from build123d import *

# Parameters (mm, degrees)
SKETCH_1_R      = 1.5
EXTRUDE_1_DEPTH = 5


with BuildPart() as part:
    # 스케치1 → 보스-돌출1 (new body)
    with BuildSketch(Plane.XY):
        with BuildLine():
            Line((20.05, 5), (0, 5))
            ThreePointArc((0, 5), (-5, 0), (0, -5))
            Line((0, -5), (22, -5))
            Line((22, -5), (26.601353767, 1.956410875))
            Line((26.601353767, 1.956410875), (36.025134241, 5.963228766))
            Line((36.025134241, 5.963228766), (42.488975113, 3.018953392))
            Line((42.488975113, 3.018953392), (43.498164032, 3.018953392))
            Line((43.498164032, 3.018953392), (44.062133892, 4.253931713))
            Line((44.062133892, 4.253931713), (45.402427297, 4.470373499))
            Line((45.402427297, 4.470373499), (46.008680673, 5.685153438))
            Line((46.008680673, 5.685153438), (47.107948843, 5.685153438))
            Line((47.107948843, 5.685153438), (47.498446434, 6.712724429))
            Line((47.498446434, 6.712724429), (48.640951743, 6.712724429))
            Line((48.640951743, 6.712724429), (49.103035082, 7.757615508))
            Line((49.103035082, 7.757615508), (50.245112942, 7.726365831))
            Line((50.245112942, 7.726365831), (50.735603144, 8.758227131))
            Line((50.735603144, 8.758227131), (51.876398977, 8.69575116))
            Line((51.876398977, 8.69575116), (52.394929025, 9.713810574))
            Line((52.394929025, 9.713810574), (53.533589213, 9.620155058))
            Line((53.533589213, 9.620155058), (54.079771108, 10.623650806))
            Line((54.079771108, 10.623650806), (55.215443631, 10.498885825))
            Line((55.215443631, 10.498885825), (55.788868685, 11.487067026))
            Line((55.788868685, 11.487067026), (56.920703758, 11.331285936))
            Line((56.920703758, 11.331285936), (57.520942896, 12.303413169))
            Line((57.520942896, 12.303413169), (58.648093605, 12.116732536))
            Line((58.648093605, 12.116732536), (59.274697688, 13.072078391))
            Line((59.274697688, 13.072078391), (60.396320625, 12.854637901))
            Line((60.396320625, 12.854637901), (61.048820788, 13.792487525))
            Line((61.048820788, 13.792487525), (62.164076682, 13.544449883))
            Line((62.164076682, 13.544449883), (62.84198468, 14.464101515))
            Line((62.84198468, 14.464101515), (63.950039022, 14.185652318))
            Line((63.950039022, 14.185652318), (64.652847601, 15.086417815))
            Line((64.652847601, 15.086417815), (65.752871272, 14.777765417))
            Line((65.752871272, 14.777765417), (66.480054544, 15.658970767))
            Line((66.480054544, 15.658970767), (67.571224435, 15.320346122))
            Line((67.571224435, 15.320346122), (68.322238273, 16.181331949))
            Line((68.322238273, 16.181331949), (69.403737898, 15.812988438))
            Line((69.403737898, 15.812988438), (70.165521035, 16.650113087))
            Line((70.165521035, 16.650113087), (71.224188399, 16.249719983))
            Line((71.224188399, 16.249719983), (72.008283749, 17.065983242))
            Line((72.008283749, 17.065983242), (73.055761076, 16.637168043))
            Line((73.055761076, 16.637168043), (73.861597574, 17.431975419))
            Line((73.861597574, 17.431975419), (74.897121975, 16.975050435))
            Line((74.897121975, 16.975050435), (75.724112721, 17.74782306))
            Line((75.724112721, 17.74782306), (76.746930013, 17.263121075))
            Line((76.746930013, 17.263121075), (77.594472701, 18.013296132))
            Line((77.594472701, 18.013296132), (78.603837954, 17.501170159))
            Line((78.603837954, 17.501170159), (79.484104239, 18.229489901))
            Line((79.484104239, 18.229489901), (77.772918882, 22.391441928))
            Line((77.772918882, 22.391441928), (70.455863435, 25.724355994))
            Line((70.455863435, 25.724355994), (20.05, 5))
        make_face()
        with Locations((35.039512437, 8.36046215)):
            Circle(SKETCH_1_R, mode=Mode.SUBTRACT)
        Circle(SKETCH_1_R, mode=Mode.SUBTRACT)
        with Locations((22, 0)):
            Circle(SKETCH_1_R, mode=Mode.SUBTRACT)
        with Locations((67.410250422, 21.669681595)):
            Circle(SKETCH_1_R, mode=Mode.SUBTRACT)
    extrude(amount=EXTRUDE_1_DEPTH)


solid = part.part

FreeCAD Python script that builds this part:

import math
import FreeCAD as App
import Part
import Sketcher
Q = App.Units.Quantity

doc = App.newDocument("Part")
params = doc.addObject("Spreadsheet::Sheet", "Params")
for row, (alias, value) in enumerate([
    ("sketch1_diameter", "3 mm"),
    ("sketch1_radius", "5 mm"),
    ("sketch1_width", "22 mm"),
    ("sketch1_length", "4.5 mm"),
    ("sketch1_length2", "54.5 mm"),
    ("pad1_length", "5 mm"),
], start=1):
    params.set(f"A{row}", alias)
    params.set(f"B{row}", "=" + value)
    params.setAlias(f"B{row}", alias)

body = doc.addObject("PartDesign::Body", "Body")

# Sketch on XY plane
sketch1 = body.newObject("Sketcher::SketchObject", "Sketch")
sketch1.AttachmentSupport = (doc.getObject("XY_Plane"), [""])
sketch1.MapMode = "FlatFace"
sketch1.addGeometry([
    Part.LineSegment(App.Vector(20.05, 5, 0), App.Vector(0, 5, 0)),  # 0
    Part.ArcOfCircle(Part.Circle(App.Vector(0, 0, 0), App.Vector(0, 0, 1), 5), math.radians(90), math.radians(270)),  # 1
    Part.LineSegment(App.Vector(0, -5, 0), App.Vector(22, -5, 0)),  # 2
    Part.LineSegment(App.Vector(22, -5, 0), App.Vector(26.601354, 1.956411, 0)),  # 3
    Part.LineSegment(App.Vector(26.601354, 1.956411, 0), App.Vector(36.025134, 5.963229, 0)),  # 4
    Part.LineSegment(App.Vector(36.025134, 5.963229, 0), App.Vector(42.488975, 3.018953, 0)),  # 5
    Part.LineSegment(App.Vector(42.488975, 3.018953, 0), App.Vector(43.498164, 3.018953, 0)),  # 6
    Part.LineSegment(App.Vector(43.498164, 3.018953, 0), App.Vector(44.062134, 4.253932, 0)),  # 7
    Part.LineSegment(App.Vector(44.062134, 4.253932, 0), App.Vector(45.402427, 4.470373, 0)),  # 8
    Part.LineSegment(App.Vector(45.402427, 4.470373, 0), App.Vector(46.008681, 5.685153, 0)),  # 9
    Part.LineSegment(App.Vector(46.008681, 5.685153, 0), App.Vector(47.107949, 5.685153, 0)),  # 10
    Part.LineSegment(App.Vector(47.107949, 5.685153, 0), App.Vector(47.498446, 6.712724, 0)),  # 11
    Part.LineSegment(App.Vector(47.498446, 6.712724, 0), App.Vector(48.640952, 6.712724, 0)),  # 12
    Part.LineSegment(App.Vector(48.640952, 6.712724, 0), App.Vector(49.103035, 7.757616, 0)),  # 13
    Part.LineSegment(App.Vector(49.103035, 7.757616, 0), App.Vector(50.245113, 7.726366, 0)),  # 14
    Part.LineSegment(App.Vector(50.245113, 7.726366, 0), App.Vector(50.735603, 8.758227, 0)),  # 15
    Part.LineSegment(App.Vector(50.735603, 8.758227, 0), App.Vector(51.876399, 8.695751, 0)),  # 16
    Part.LineSegment(App.Vector(51.876399, 8.695751, 0), App.Vector(52.394929, 9.713811, 0)),  # 17
    Part.LineSegment(App.Vector(52.394929, 9.713811, 0), App.Vector(53.533589, 9.620155, 0)),  # 18
    Part.LineSegment(App.Vector(53.533589, 9.620155, 0), App.Vector(54.079771, 10.623651, 0)),  # 19
    Part.LineSegment(App.Vector(54.079771, 10.623651, 0), App.Vector(55.215444, 10.498886, 0)),  # 20
    Part.LineSegment(App.Vector(55.215444, 10.498886, 0), App.Vector(55.788869, 11.487067, 0)),  # 21
    Part.LineSegment(App.Vector(55.788869, 11.487067, 0), App.Vector(56.920704, 11.331286, 0)),  # 22
    Part.LineSegment(App.Vector(56.920704, 11.331286, 0), App.Vector(57.520943, 12.303413, 0)),  # 23
    Part.LineSegment(App.Vector(57.520943, 12.303413, 0), App.Vector(58.648094, 12.116733, 0)),  # 24
    Part.LineSegment(App.Vector(58.648094, 12.116733, 0), App.Vector(59.274698, 13.072078, 0)),  # 25
    Part.LineSegment(App.Vector(59.274698, 13.072078, 0), App.Vector(60.396321, 12.854638, 0)),  # 26
    Part.LineSegment(App.Vector(60.396321, 12.854638, 0), App.Vector(61.048821, 13.792488, 0)),  # 27
    Part.LineSegment(App.Vector(61.048821, 13.792488, 0), App.Vector(62.164077, 13.54445, 0)),  # 28
    Part.LineSegment(App.Vector(62.164077, 13.54445, 0), App.Vector(62.841985, 14.464102, 0)),  # 29
    Part.LineSegment(App.Vector(62.841985, 14.464102, 0), App.Vector(63.950039, 14.185652, 0)),  # 30
    Part.LineSegment(App.Vector(63.950039, 14.185652, 0), App.Vector(64.652848, 15.086418, 0)),  # 31
    Part.LineSegment(App.Vector(64.652848, 15.086418, 0), App.Vector(65.752871, 14.777765, 0)),  # 32
    Part.LineSegment(App.Vector(65.752871, 14.777765, 0), App.Vector(66.480055, 15.658971, 0)),  # 33
    Part.LineSegment(App.Vector(66.480055, 15.658971, 0), App.Vector(67.571224, 15.320346, 0)),  # 34
    Part.LineSegment(App.Vector(67.571224, 15.320346, 0), App.Vector(68.322238, 16.181332, 0)),  # 35
    Part.LineSegment(App.Vector(68.322238, 16.181332, 0), App.Vector(69.403738, 15.812988, 0)),  # 36
    Part.LineSegment(App.Vector(69.403738, 15.812988, 0), App.Vector(70.165521, 16.650113, 0)),  # 37
    Part.LineSegment(App.Vector(70.165521, 16.650113, 0), App.Vector(71.224188, 16.24972, 0)),  # 38
    Part.LineSegment(App.Vector(71.224188, 16.24972, 0), App.Vector(72.008284, 17.065983, 0)),  # 39
    Part.LineSegment(App.Vector(72.008284, 17.065983, 0), App.Vector(73.055761, 16.637168, 0)),  # 40
    Part.LineSegment(App.Vector(73.055761, 16.637168, 0), App.Vector(73.861598, 17.431975, 0)),  # 41
    Part.LineSegment(App.Vector(73.861598, 17.431975, 0), App.Vector(74.897122, 16.97505, 0)),  # 42
    Part.LineSegment(App.Vector(74.897122, 16.97505, 0), App.Vector(75.724113, 17.747823, 0)),  # 43
    Part.LineSegment(App.Vector(75.724113, 17.747823, 0), App.Vector(76.74693, 17.263121, 0)),  # 44
    Part.LineSegment(App.Vector(76.74693, 17.263121, 0), App.Vector(77.594473, 18.013296, 0)),  # 45
    Part.LineSegment(App.Vector(77.594473, 18.013296, 0), App.Vector(78.603838, 17.50117, 0)),  # 46
    Part.LineSegment(App.Vector(78.603838, 17.50117, 0), App.Vector(79.484104, 18.22949, 0)),  # 47
    Part.LineSegment(App.Vector(79.484104, 18.22949, 0), App.Vector(77.772919, 22.391442, 0)),  # 48
    Part.LineSegment(App.Vector(77.772919, 22.391442, 0), App.Vector(70.455863, 25.724356, 0)),  # 49
    Part.LineSegment(App.Vector(70.455863, 25.724356, 0), App.Vector(20.05, 5, 0)),  # 50
    Part.Circle(App.Vector(0, 0, 0), App.Vector(0, 0, 1), 1.5),  # 51
    Part.Circle(App.Vector(22, 0, 0), App.Vector(0, 0, 1), 1.5),  # 52
    Part.Circle(App.Vector(35.039512, 8.360462, 0), App.Vector(0, 0, 1), 1.5),  # 53
    Part.Circle(App.Vector(67.41025, 21.669682, 0), App.Vector(0, 0, 1), 1.5),  # 54
], False)
sketch1.addConstraint([
    Sketcher.Constraint("Tangent", 0, 2, 1, 1),
    Sketcher.Constraint("Tangent", 1, 2, 2, 1),
    Sketcher.Constraint("Coincident", 2, 2, 3, 1),
    Sketcher.Constraint("Coincident", 3, 2, 4, 1),
    Sketcher.Constraint("Coincident", 4, 2, 5, 1),
    Sketcher.Constraint("Coincident", 5, 2, 6, 1),
    Sketcher.Constraint("Coincident", 6, 2, 7, 1),
    Sketcher.Constraint("Coincident", 7, 2, 8, 1),
    Sketcher.Constraint("Coincident", 8, 2, 9, 1),
    Sketcher.Constraint("Coincident", 9, 2, 10, 1),
    Sketcher.Constraint("Coincident", 10, 2, 11, 1),
    Sketcher.Constraint("Coincident", 11, 2, 12, 1),
    Sketcher.Constraint("Coincident", 12, 2, 13, 1),
    Sketcher.Constraint("Coincident", 13, 2, 14, 1),
    Sketcher.Constraint("Coincident", 14, 2, 15, 1),
    Sketcher.Constraint("Coincident", 15, 2, 16, 1),
    Sketcher.Constraint("Coincident", 16, 2, 17, 1),
    Sketcher.Constraint("Coincident", 17, 2, 18, 1),
    Sketcher.Constraint("Coincident", 18, 2, 19, 1),
    Sketcher.Constraint("Coincident", 19, 2, 20, 1),
    Sketcher.Constraint("Coincident", 20, 2, 21, 1),
    Sketcher.Constraint("Coincident", 21, 2, 22, 1),
    Sketcher.Constraint("Coincident", 22, 2, 23, 1),
    Sketcher.Constraint("Coincident", 23, 2, 24, 1),
    Sketcher.Constraint("Coincident", 24, 2, 25, 1),
    Sketcher.Constraint("Coincident", 25, 2, 26, 1),
    Sketcher.Constraint("Coincident", 26, 2, 27, 1),
    Sketcher.Constraint("Coincident", 27, 2, 28, 1),
    Sketcher.Constraint("Coincident", 28, 2, 29, 1),
    Sketcher.Constraint("Coincident", 29, 2, 30, 1),
    Sketcher.Constraint("Coincident", 30, 2, 31, 1),
    Sketcher.Constraint("Coincident", 31, 2, 32, 1),
    Sketcher.Constraint("Coincident", 32, 2, 33, 1),
    Sketcher.Constraint("Coincident", 33, 2, 34, 1),
    Sketcher.Constraint("Coincident", 34, 2, 35, 1),
    Sketcher.Constraint("Coincident", 35, 2, 36, 1),
    Sketcher.Constraint("Coincident", 36, 2, 37, 1),
    Sketcher.Constraint("Coincident", 37, 2, 38, 1),
    Sketcher.Constraint("Coincident", 38, 2, 39, 1),
    Sketcher.Constraint("Coincident", 39, 2, 40, 1),
    Sketcher.Constraint("Coincident", 40, 2, 41, 1),
    Sketcher.Constraint("Coincident", 41, 2, 42, 1),
    Sketcher.Constraint("Coincident", 42, 2, 43, 1),
    Sketcher.Constraint("Coincident", 43, 2, 44, 1),
    Sketcher.Constraint("Coincident", 44, 2, 45, 1),
    Sketcher.Constraint("Coincident", 45, 2, 46, 1),
    Sketcher.Constraint("Coincident", 46, 2, 47, 1),
    Sketcher.Constraint("Coincident", 47, 2, 48, 1),
    Sketcher.Constraint("Coincident", 48, 2, 49, 1),
    Sketcher.Constraint("Coincident", 49, 2, 50, 1),
    Sketcher.Constraint("Coincident", 50, 2, 0, 1),
    Sketcher.Constraint("Horizontal", 0),
    Sketcher.Constraint("Horizontal", 2),
    Sketcher.Constraint("Horizontal", 6),
    Sketcher.Constraint("Horizontal", 10),
    Sketcher.Constraint("Horizontal", 12),
    Sketcher.Constraint("Coincident", 1, 3, -1, 1),
    Sketcher.Constraint("Coincident", 51, 3, -1, 1),
    Sketcher.Constraint("Equal", 51, 52),
    Sketcher.Constraint("Equal", 52, 53),
    Sketcher.Constraint("Equal", 53, 54),
    Sketcher.Constraint("PointOnObject", 52, 3, -1),
    Sketcher.Constraint("Parallel", 5, 49),
    Sketcher.Constraint("Perpendicular", 48, 50),
    Sketcher.Constraint("Vertical", 52, 3, 2, 2),
    Sketcher.Constraint("Equal", 7, 8),
    Sketcher.Constraint("Equal", 8, 9),
    Sketcher.Constraint("Equal", 13, 14),
    Sketcher.Constraint("Equal", 14, 15),
    Sketcher.Constraint("Equal", 15, 16),
    Sketcher.Constraint("Equal", 16, 17),
    Sketcher.Constraint("Equal", 17, 18),
    Sketcher.Constraint("Equal", 18, 19),
    Sketcher.Constraint("Equal", 19, 20),
    Sketcher.Constraint("Equal", 20, 21),
    Sketcher.Constraint("Equal", 21, 22),
    Sketcher.Constraint("Equal", 22, 23),
    Sketcher.Constraint("Equal", 23, 24),
    Sketcher.Constraint("Equal", 24, 25),
    Sketcher.Constraint("Equal", 25, 26),
    Sketcher.Constraint("Equal", 26, 27),
    Sketcher.Constraint("Equal", 27, 28),
    Sketcher.Constraint("Equal", 28, 29),
    Sketcher.Constraint("Equal", 29, 30),
    Sketcher.Constraint("Equal", 30, 31),
    Sketcher.Constraint("Equal", 31, 32),
    Sketcher.Constraint("Equal", 32, 33),
    Sketcher.Constraint("Equal", 33, 34),
    Sketcher.Constraint("Equal", 34, 35),
    Sketcher.Constraint("Equal", 35, 36),
    Sketcher.Constraint("Equal", 37, 38),
    Sketcher.Constraint("Equal", 38, 39),
    Sketcher.Constraint("Equal", 39, 40),
    Sketcher.Constraint("Equal", 40, 41),
    Sketcher.Constraint("Equal", 41, 42),
    Sketcher.Constraint("Equal", 42, 43),
    Sketcher.Constraint("Equal", 43, 44),
    Sketcher.Constraint("Equal", 44, 45),
    Sketcher.Constraint("Equal", 45, 46),
    Sketcher.Constraint("Equal", 36, 47),
    Sketcher.Constraint("Diameter", 51, Q("3 mm")),
    Sketcher.Constraint("Radius", 1, Q("5 mm")),
    Sketcher.Constraint("DistanceX", 2, 1, 2, 2, Q("22 mm")),
    Sketcher.Constraint("Distance", 48, Q("4.5 mm")),
    Sketcher.Constraint("Distance", 50, Q("54.5 mm")),
    Sketcher.Constraint("DistanceX", 0, 2, 0, 1, Q("20.05 mm")),
    Sketcher.Constraint("Angle", 48, Q("112.35 deg")),
    Sketcher.Constraint("DistanceX", 4, 2, 7, 2, Q("8.037 mm")),
    Sketcher.Constraint("DistanceX", 6, 1, 6, 2, Q("1.009189 mm")),
    Sketcher.Constraint("DistanceX", 10, 1, 10, 2, Q("1.099268 mm")),
    Sketcher.Constraint("DistanceX", -1, 1, 16, 2, Q("51.876399 mm")),
    Sketcher.Constraint("DistanceY", -1, 1, 29, 2, Q("14.464102 mm")),
    Sketcher.Constraint("DistanceY", 6, 2, 9, 2, Q("2.6662 mm")),
    Sketcher.Constraint("DistanceY", 16, 2, 19, 2, Q("1.9279 mm")),
    Sketcher.Constraint("DistanceY", 20, 2, 22, 2, Q("0.8324 mm")),
    Sketcher.Constraint("DistanceX", 20, 2, 23, 2, Q("2.305499 mm")),
    Sketcher.Constraint("DistanceX", 26, 2, 27, 2, Q("0.6525 mm")),
    Sketcher.Constraint("DistanceY", 22, 2, 27, 2, Q("2.461202 mm")),
    Sketcher.Constraint("DistanceX", 30, 2, 35, 2, Q("4.372199 mm")),
    Sketcher.Constraint("DistanceX", 35, 2, 36, 2, Q("1.0815 mm")),
    Sketcher.Constraint("DistanceX", 37, 2, 42, 2, Q("4.731601 mm")),
    Sketcher.Constraint("DistanceY", 44, 2, 43, 2, Q("0.484702 mm")),
    Sketcher.Constraint("Distance", 3, Q("8.34051 mm")),
    Sketcher.Constraint("Distance", 11, Q("1.099268 mm")),
    Sketcher.Constraint("DistanceX", 12, 1, 12, 2, Q("1.142505 mm")),
    Sketcher.Constraint("DistanceX", -1, 1, 54, 3, Q("67.41025 mm")),
    Sketcher.Constraint("DistanceY", -1, 1, 54, 3, Q("21.669682 mm")),
    Sketcher.Constraint("DistanceY", -1, 1, 3, 2, Q("1.956411 mm")),
    Sketcher.Constraint("DistanceY", -1, 1, 4, 2, Q("5.963229 mm")),
    Sketcher.Constraint("DistanceY", -1, 1, 7, 2, Q("4.253932 mm")),
    Sketcher.Constraint("DistanceX", -1, 1, 9, 2, Q("46.008681 mm")),
    Sketcher.Constraint("DistanceX", -1, 1, 12, 2, Q("48.640952 mm")),
    Sketcher.Constraint("DistanceY", -1, 1, 16, 2, Q("8.695751 mm")),
    Sketcher.Constraint("DistanceX", -1, 1, 17, 2, Q("52.394929 mm")),
    Sketcher.Constraint("DistanceY", -1, 1, 17, 2, Q("9.713811 mm")),
    Sketcher.Constraint("DistanceX", -1, 1, 18, 2, Q("53.533589 mm")),
    Sketcher.Constraint("DistanceX", -1, 1, 21, 2, Q("55.788869 mm")),
    Sketcher.Constraint("DistanceY", -1, 1, 25, 2, Q("13.072078 mm")),
    Sketcher.Constraint("DistanceX", -1, 1, 26, 2, Q("60.396321 mm")),
    Sketcher.Constraint("DistanceY", -1, 1, 28, 2, Q("13.54445 mm")),
    Sketcher.Constraint("DistanceX", -1, 1, 30, 2, Q("63.950039 mm")),
    Sketcher.Constraint("DistanceX", -1, 1, 32, 2, Q("65.752871 mm")),
    Sketcher.Constraint("DistanceY", -1, 1, 33, 2, Q("15.658971 mm")),
    Sketcher.Constraint("DistanceY", -1, 1, 35, 2, Q("16.181332 mm")),
    Sketcher.Constraint("DistanceX", -1, 1, 37, 2, Q("70.165521 mm")),
    Sketcher.Constraint("DistanceX", -1, 1, 38, 2, Q("71.224188 mm")),
    Sketcher.Constraint("DistanceY", -1, 1, 38, 2, Q("16.24972 mm")),
    Sketcher.Constraint("DistanceX", -1, 1, 40, 2, Q("73.055761 mm")),
    Sketcher.Constraint("DistanceY", -1, 1, 40, 2, Q("16.637168 mm")),
    Sketcher.Constraint("DistanceY", -1, 1, 42, 2, Q("16.97505 mm")),
    Sketcher.Constraint("DistanceX", -1, 1, 44, 2, Q("76.74693 mm")),
    Sketcher.Constraint("DistanceY", -1, 1, 46, 2, Q("17.50117 mm")),
    Sketcher.Constraint("DistanceY", -1, 1, 47, 2, Q("18.22949 mm")),
    Sketcher.Constraint("DistanceX", -1, 1, 48, 2, Q("77.772919 mm")),
    Sketcher.Constraint("DistanceY", 53, 3, 54, 3, Q("13.309219 mm")),
    Sketcher.Constraint("DistanceX", 3, 2, 53, 3, Q("8.438159 mm")),
    Sketcher.Constraint("DistanceX", 53, 3, 4, 2, Q("0.985622 mm")),
    Sketcher.Constraint("DistanceX", 4, 2, 5, 2, Q("6.463841 mm")),
    Sketcher.Constraint("DistanceY", 12, 2, 13, 2, Q("1.044891 mm")),
    Sketcher.Constraint("DistanceY", 14, 2, 13, 2, Q("0.03125 mm")),
    Sketcher.Constraint("DistanceY", 18, 2, 20, 2, Q("0.878731 mm")),
    Sketcher.Constraint("DistanceX", 30, 2, 31, 2, Q("0.702809 mm")),
])
sketch1.setExpression("Constraints[100]", "Params.sketch1_diameter")
sketch1.setExpression("Constraints[101]", "Params.sketch1_radius")
sketch1.setExpression("Constraints[102]", "Params.sketch1_width")
sketch1.setExpression("Constraints[103]", "Params.sketch1_length")
sketch1.setExpression("Constraints[104]", "Params.sketch1_length2")
pad1 = body.newObject("PartDesign::Pad", "Pad")
pad1.Profile = sketch1
pad1.setExpression("Length", "Params.pad1_length")

doc.recompute()
